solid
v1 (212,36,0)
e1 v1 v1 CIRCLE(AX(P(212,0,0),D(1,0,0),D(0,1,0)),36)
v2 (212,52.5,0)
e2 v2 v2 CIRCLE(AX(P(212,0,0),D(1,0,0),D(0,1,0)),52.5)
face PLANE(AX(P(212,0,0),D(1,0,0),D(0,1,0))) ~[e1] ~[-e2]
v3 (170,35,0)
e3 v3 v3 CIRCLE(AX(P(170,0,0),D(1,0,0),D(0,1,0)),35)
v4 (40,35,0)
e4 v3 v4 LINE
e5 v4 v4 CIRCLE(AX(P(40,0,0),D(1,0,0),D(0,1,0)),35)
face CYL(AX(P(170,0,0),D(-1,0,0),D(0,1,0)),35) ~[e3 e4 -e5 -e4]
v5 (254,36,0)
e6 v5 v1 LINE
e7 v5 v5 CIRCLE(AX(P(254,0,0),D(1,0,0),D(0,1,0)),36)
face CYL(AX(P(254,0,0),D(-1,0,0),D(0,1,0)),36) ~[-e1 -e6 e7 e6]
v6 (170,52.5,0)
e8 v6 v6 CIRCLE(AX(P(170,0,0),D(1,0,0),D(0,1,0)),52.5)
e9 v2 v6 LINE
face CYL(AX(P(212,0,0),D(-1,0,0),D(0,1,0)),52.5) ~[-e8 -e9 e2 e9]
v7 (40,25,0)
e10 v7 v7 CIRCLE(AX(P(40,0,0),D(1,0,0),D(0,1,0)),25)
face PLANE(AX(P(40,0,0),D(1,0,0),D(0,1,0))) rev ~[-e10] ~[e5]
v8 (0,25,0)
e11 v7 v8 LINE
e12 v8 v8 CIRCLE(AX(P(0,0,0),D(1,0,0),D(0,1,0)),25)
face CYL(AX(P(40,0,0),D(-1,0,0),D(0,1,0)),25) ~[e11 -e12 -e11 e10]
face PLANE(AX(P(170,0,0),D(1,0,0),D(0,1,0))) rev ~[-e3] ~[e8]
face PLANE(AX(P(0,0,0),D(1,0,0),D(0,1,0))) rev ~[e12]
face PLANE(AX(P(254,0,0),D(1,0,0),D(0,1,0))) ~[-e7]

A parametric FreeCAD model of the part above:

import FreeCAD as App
import Part
import Sketcher


def add_polygon(sketch, points):
    """Adds a closed chain of lines whose ends are joined by coincident constraints."""
    first, n = sketch.GeometryCount, len(points)
    for a, b in zip(points, points[1:] + points[:1]):
        sketch.addGeometry(Part.LineSegment(App.Vector(*a, 0), App.Vector(*b, 0)), False)
    for i in range(n):
        sketch.addConstraint(Sketcher.Constraint("Coincident", first + i, 2, first + (i + 1) % n, 1))

doc = App.newDocument("Part")
body = doc.addObject("PartDesign::Body", "Body")

sketch1 = doc.addObject("Sketcher::SketchObject", "Sketch")
body.addObject(sketch1)
sketch1.AttachmentSupport = (doc.XY_Plane, [""])
sketch1.MapMode = "FlatFace"
add_polygon(sketch1, [(0, 0), (254, 0), (254, 36), (212, 36), (212, 52), (170, 52), (170, 35), (40, 35), (40, 25), (0, 25)])
sketch1.addConstraint(Sketcher.Constraint("Horizontal", 0))
sketch1.addConstraint(Sketcher.Constraint("Vertical", 1))
sketch1.addConstraint(Sketcher.Constraint("Horizontal", 2))
sketch1.addConstraint(Sketcher.Constraint("Vertical", 3))
sketch1.addConstraint(Sketcher.Constraint("Horizontal", 4))
sketch1.addConstraint(Sketcher.Constraint("Vertical", 5))
sketch1.addConstraint(Sketcher.Constraint("Horizontal", 6))
sketch1.addConstraint(Sketcher.Constraint("Vertical", 7))
sketch1.addConstraint(Sketcher.Constraint("Horizontal", 8))
sketch1.addConstraint(Sketcher.Constraint("Vertical", 9))
sketch1.addConstraint(Sketcher.Constraint("Coincident", 9, 2, -1, 1))
sketch1.addConstraint(Sketcher.Constraint("Equal", 2, 4))
sketch1.addConstraint(Sketcher.Constraint("DistanceX", 0, 1, 0, 2, 254.0))
sketch1.addConstraint(Sketcher.Constraint("DistanceX", 2, 2, 2, 1, 42.0))
sketch1.addConstraint(Sketcher.Constraint("DistanceX", 6, 2, 6, 1, 130.0))
sketch1.addConstraint(Sketcher.Constraint("DistanceY", 1, 1, 1, 2, 36.0))
sketch1.addConstraint(Sketcher.Constraint("DistanceY", 7, 2, 7, 1, 10.0))
sketch1.addConstraint(Sketcher.Constraint("DistanceY", 9, 2, 9, 1, 25.0))
sketch1.addConstraint(Sketcher.Constraint("DistanceY", 3, 1, 3, 2, 16.5))
revolution = doc.addObject("PartDesign::Revolution", "Revolution")
body.addObject(revolution)
revolution.Profile = sketch1
revolution.ReferenceAxis = (sketch1, ["H_Axis"])
revolution.Angle = 360

doc.recompute()
